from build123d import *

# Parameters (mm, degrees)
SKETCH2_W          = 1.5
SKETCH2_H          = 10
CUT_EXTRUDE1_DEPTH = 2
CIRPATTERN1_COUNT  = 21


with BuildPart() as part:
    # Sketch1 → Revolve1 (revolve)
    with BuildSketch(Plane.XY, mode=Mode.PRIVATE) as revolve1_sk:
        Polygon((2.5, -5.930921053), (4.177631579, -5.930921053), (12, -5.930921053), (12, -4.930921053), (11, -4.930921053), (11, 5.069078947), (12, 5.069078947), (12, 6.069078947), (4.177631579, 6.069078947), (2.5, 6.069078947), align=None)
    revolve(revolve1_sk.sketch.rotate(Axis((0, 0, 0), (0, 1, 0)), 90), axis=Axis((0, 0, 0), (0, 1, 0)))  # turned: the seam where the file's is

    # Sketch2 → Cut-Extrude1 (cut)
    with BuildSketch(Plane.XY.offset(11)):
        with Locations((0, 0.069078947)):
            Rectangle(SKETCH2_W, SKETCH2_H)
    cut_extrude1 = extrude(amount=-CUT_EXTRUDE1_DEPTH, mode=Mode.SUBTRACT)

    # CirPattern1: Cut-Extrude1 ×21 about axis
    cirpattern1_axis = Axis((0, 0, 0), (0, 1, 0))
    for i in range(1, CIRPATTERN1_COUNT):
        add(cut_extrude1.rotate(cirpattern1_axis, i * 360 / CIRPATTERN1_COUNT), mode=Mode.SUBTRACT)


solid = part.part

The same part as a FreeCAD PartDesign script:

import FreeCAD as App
import Part
import Sketcher
Q = App.Units.Quantity

doc = App.newDocument("Part")
params = doc.addObject("Spreadsheet::Sheet", "Params")
for row, (alias, value) in enumerate([
    ("sketch1_width", "1 mm"),
    ("sketch1_height", "10 mm"),
    ("sketch1_width2", "9.5 mm"),
    ("revolution_angle", "360 deg"),
    ("sketch2_height", "10 mm"),
    ("sketch2_width", "1.5 mm"),
    ("pocket1_length", "2 mm"),
], start=1):
    params.set(f"A{row}", alias)
    params.set(f"B{row}", "=" + value)
    params.setAlias(f"B{row}", alias)

body = doc.addObject("PartDesign::Body", "Body")

# Sketch on XY plane
sketch1 = body.newObject("Sketcher::SketchObject", "Sketch")
sketch1.AttachmentSupport = (doc.getObject("XY_Plane"), [""])
sketch1.MapMode = "FlatFace"
sketch1.addGeometry([
    Part.LineSegment(App.Vector(2.5, -5.930921, 0), App.Vector(12, -5.930921, 0)),  # 0
    Part.LineSegment(App.Vector(12, -5.930921, 0), App.Vector(12, -4.930921, 0)),  # 1
    Part.LineSegment(App.Vector(12, -4.930921, 0), App.Vector(11, -4.930921, 0)),  # 2
    Part.LineSegment(App.Vector(11, -4.930921, 0), App.Vector(11, 5.069079, 0)),  # 3
    Part.LineSegment(App.Vector(11, 5.069079, 0), App.Vector(12, 5.069079, 0)),  # 4
    Part.LineSegment(App.Vector(12, 5.069079, 0), App.Vector(12, 6.069079, 0)),  # 5
    Part.LineSegment(App.Vector(12, 6.069079, 0), App.Vector(2.5, 6.069079, 0)),  # 6
    Part.LineSegment(App.Vector(2.5, 6.069079, 0), App.Vector(2.5, -5.930921, 0)),  # 7
], False)
sketch1.addConstraint([
    Sketcher.Constraint("Coincident", 0, 2, 1, 1),
    Sketcher.Constraint("Coincident", 1, 2, 2, 1),
    Sketcher.Constraint("Coincident", 2, 2, 3, 1),
    Sketcher.Constraint("Coincident", 3, 2, 4, 1),
    Sketcher.Constraint("Coincident", 4, 2, 5, 1),
    Sketcher.Constraint("Coincident", 5, 2, 6, 1),
    Sketcher.Constraint("Coincident", 6, 2, 7, 1),
    Sketcher.Constraint("Coincident", 7, 2, 0, 1),
    Sketcher.Constraint("Horizontal", 0),
    Sketcher.Constraint("Vertical", 1),
    Sketcher.Constraint("Horizontal", 2),
    Sketcher.Constraint("Vertical", 3),
    Sketcher.Constraint("Horizontal", 4),
    Sketcher.Constraint("Vertical", 5),
    Sketcher.Constraint("Horizontal", 6),
    Sketcher.Constraint("Vertical", 7),
    Sketcher.Constraint("Vertical", 1, 2, 4, 2),
    Sketcher.Constraint("Equal", 4, 1),
    Sketcher.Constraint("Equal", 1, 5),
    Sketcher.Constraint("DistanceX", 2, 2, 2, 1, Q("1 mm")),
    Sketcher.Constraint("DistanceY", 3, 1, 3, 2, Q("10 mm")),
    Sketcher.Constraint("DistanceX", 0, 1, 0, 2, Q("9.5 mm")),
    Sketcher.Constraint("DistanceX", -1, 1, 0, 2, Q("12 mm")),
    Sketcher.Constraint("DistanceY", 0, 2, -1, 1, Q("5.930921 mm")),
])
sketch1.setExpression("Constraints[19]", "Params.sketch1_width")
sketch1.setExpression("Constraints[20]", "Params.sketch1_height")
sketch1.setExpression("Constraints[21]", "Params.sketch1_width2")
revolution = body.newObject("PartDesign::Revolution", "Revolution")
revolution.Profile = sketch1
revolution.ReferenceAxis = (sketch1, ["V_Axis"])
revolution.setExpression("Angle", "Params.revolution_angle")

# Sketch on XY plane
sketch2 = body.newObject("Sketcher::SketchObject", "Sketch001")
sketch2.AttachmentSupport = (doc.getObject("XY_Plane"), [""])
sketch2.MapMode = "FlatFace"
sketch2.AttachmentOffset = App.Placement(App.Vector(0, 0, 11), App.Rotation())
sketch2.addGeometry([
    Part.LineSegment(App.Vector(-0.75, 5.069079, 0), App.Vector(-0.75, -4.930921, 0)),
    Part.LineSegment(App.Vector(-0.75, -4.930921, 0), App.Vector(0.75, -4.930921, 0)),
    Part.LineSegment(App.Vector(0.75, -4.930921, 0), App.Vector(0.75, 5.069079, 0)),
    Part.LineSegment(App.Vector(0.75, 5.069079, 0), App.Vector(-0.75, 5.069079, 0)),
], False)
sketch2.addConstraint([
    Sketcher.Constraint("Coincident", 0, 2, 1, 1),
    Sketcher.Constraint("Coincident", 1, 2, 2, 1),
    Sketcher.Constraint("Coincident", 2, 2, 3, 1),
    Sketcher.Constraint("Coincident", 3, 2, 0, 1),
    Sketcher.Constraint("Vertical", 0),
    Sketcher.Constraint("Horizontal", 1),
    Sketcher.Constraint("Vertical", 2),
    Sketcher.Constraint("Horizontal", 3),
    Sketcher.Constraint("DistanceY", 0, 2, 0, 1, Q("10 mm")),
    Sketcher.Constraint("DistanceX", 1, 1, 1, 2, Q("1.5 mm")),
    Sketcher.Constraint("DistanceX", 0, 2, -1, 1, Q("0.75 mm")),
    Sketcher.Constraint("DistanceY", 0, 2, -1, 1, Q("4.930921 mm")),
])
sketch2.setExpression("Constraints[8]", "Params.sketch2_height")
sketch2.setExpression("Constraints[9]", "Params.sketch2_width")
pocket1 = body.newObject("PartDesign::Pocket", "Pocket")
pocket1.Profile = sketch2
pocket1.setExpression("Length", "Params.pocket1_length")
doc.recompute()

polarpattern = body.newObject("PartDesign::PolarPattern", "PolarPattern")
polarpattern.Originals = [pocket1]
polarpattern.Axis = (doc.getObject("Y_Axis"), [""])
polarpattern.Angle = 360
polarpattern.Occurrences = 21
body.Tip = polarpattern

doc.recompute()
